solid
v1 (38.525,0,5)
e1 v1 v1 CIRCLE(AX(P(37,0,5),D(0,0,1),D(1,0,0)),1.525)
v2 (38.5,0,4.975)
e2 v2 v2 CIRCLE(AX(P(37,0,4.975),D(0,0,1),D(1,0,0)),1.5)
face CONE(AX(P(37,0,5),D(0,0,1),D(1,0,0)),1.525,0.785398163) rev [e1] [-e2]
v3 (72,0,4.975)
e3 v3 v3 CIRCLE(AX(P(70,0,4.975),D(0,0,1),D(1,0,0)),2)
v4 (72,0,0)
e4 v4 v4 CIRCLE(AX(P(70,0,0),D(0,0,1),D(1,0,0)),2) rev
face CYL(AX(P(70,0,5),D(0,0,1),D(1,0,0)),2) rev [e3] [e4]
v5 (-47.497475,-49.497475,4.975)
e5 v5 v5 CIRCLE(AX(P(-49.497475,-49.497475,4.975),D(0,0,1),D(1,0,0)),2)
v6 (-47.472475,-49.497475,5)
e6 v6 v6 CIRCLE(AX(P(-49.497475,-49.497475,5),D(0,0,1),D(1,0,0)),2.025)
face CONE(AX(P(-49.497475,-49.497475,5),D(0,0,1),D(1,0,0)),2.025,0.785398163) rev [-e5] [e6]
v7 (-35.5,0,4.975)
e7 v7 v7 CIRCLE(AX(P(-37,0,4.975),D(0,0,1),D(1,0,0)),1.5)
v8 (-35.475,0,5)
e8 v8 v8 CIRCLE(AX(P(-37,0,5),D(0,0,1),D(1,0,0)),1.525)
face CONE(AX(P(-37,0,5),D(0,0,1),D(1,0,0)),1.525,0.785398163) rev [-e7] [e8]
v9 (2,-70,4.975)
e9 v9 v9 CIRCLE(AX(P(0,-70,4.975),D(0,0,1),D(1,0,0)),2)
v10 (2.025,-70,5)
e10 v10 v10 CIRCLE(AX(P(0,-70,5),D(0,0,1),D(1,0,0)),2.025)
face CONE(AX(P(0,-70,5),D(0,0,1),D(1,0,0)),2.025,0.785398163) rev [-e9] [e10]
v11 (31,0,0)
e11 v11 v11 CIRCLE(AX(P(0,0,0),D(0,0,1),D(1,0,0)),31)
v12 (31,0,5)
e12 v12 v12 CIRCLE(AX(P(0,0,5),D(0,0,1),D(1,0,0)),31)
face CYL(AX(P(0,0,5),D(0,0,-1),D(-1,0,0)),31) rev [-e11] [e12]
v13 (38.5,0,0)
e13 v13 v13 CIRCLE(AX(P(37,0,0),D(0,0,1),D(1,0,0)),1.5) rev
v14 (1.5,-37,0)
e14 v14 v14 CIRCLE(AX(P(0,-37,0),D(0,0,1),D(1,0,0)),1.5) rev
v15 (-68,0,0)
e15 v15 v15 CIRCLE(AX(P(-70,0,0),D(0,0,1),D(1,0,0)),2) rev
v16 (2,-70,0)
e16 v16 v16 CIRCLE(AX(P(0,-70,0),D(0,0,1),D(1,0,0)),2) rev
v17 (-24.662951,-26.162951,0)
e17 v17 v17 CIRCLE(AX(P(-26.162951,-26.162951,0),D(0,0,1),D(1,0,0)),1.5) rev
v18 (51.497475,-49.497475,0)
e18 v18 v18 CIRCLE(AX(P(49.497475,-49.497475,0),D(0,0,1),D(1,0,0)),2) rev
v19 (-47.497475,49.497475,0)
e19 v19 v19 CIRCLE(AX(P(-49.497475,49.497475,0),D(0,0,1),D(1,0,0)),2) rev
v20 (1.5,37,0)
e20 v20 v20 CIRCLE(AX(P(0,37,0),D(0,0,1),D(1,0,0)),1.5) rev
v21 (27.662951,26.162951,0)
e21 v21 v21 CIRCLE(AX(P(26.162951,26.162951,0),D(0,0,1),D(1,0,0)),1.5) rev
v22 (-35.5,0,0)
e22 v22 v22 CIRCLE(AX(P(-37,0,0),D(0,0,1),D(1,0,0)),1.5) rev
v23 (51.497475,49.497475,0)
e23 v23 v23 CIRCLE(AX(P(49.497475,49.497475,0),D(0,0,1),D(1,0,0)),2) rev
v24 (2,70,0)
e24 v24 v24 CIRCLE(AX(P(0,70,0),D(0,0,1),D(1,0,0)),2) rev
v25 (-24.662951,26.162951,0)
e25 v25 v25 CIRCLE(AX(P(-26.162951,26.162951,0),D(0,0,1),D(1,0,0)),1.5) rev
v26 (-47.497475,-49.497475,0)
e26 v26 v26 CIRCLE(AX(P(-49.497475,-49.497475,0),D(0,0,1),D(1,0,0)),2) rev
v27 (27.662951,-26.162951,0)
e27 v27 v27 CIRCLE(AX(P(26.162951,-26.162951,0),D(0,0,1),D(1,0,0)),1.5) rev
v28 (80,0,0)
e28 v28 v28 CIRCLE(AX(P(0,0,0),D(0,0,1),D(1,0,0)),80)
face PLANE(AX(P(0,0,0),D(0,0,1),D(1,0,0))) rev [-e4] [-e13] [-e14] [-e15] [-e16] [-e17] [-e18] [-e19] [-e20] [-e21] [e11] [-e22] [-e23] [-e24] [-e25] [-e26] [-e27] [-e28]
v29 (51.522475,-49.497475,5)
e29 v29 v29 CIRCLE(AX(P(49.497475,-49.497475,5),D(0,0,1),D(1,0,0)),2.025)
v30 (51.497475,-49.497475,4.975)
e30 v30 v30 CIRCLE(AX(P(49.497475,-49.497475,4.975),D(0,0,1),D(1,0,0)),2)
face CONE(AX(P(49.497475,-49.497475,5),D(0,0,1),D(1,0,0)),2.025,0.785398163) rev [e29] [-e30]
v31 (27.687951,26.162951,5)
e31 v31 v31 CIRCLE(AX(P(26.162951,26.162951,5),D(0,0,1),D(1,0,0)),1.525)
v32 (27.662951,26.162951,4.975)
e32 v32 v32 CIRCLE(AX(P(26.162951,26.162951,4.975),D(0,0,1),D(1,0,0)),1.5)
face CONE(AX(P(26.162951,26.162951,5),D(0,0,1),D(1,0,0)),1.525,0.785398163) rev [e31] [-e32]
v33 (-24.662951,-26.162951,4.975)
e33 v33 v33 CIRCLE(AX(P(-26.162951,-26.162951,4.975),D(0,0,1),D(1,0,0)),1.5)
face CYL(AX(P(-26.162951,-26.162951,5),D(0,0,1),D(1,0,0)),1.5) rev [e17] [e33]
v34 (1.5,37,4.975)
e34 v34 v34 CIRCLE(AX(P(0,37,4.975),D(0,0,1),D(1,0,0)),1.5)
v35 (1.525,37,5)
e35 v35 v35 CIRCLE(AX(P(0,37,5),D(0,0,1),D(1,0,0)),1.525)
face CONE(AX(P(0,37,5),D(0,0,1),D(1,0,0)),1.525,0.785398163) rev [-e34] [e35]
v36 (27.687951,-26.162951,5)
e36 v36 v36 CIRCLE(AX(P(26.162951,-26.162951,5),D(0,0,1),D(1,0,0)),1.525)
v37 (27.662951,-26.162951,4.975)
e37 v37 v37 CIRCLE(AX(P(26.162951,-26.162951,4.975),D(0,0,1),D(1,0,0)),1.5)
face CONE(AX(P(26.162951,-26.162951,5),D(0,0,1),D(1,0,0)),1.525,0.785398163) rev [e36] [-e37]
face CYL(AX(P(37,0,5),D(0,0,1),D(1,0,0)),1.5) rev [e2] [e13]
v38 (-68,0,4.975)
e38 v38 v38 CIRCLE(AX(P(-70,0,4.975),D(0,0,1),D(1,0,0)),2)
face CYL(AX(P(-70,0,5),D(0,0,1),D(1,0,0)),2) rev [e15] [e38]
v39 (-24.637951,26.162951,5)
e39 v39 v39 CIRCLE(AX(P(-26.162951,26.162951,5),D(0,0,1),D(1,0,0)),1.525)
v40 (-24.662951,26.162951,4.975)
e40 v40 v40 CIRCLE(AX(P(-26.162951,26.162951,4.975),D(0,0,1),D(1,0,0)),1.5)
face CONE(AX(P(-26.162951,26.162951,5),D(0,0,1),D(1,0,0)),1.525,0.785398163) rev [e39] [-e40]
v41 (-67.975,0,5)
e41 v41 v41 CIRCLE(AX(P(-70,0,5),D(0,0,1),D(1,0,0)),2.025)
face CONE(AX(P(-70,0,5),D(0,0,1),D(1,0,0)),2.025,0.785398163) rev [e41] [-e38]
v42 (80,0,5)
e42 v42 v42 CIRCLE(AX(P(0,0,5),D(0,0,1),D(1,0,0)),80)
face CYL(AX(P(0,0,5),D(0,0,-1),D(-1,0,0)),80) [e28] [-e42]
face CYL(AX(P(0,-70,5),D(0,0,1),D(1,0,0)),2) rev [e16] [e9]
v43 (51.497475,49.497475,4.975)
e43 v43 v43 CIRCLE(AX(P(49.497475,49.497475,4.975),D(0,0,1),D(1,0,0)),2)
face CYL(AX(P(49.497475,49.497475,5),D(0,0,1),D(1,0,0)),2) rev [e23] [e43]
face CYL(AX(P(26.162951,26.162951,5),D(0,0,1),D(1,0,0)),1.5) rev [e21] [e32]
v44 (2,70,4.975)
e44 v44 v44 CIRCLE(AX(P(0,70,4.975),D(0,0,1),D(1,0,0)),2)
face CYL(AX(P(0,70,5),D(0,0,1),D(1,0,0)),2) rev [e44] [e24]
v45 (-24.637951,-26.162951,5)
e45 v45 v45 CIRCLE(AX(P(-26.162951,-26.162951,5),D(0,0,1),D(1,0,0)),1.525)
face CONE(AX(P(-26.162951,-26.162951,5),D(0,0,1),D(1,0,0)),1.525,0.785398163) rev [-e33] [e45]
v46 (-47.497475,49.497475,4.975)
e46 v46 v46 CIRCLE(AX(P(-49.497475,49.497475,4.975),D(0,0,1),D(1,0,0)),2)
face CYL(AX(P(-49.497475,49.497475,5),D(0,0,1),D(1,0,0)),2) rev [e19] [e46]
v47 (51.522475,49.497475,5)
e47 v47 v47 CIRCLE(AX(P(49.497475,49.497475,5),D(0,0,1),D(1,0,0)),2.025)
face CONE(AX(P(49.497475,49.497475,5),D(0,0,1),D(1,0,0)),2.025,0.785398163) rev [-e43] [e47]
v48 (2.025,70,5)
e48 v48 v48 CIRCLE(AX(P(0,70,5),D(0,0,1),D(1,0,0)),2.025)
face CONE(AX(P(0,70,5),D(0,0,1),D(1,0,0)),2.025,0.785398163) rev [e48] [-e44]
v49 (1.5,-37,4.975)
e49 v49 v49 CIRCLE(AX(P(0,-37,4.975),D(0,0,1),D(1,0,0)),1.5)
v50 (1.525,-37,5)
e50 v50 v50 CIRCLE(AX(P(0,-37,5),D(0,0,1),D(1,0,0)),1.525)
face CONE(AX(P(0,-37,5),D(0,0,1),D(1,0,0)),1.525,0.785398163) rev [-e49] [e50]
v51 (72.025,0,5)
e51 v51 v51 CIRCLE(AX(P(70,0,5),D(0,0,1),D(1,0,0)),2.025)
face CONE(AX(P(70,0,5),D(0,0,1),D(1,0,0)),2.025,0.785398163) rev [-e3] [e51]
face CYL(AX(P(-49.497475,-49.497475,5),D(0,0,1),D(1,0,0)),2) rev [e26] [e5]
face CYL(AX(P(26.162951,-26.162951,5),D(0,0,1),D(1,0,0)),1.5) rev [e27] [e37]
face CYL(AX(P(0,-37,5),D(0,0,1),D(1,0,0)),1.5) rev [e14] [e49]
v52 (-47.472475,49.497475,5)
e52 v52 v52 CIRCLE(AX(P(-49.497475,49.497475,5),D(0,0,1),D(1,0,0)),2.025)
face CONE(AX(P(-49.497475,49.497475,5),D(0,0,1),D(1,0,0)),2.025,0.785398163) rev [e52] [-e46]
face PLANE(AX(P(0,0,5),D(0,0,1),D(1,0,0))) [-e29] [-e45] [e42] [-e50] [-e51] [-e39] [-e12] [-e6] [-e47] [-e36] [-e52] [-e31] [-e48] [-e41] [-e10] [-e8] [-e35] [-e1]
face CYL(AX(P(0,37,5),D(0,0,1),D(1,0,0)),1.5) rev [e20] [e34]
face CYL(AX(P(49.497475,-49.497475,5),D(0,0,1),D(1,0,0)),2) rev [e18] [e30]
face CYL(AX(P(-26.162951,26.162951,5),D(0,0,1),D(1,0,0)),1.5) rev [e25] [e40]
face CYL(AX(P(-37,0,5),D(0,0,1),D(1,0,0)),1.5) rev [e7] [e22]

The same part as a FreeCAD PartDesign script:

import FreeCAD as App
import Part
import Sketcher
Q = App.Units.Quantity

doc = App.newDocument("Part")
params = doc.addObject("Spreadsheet::Sheet", "Params")
for row, (alias, value) in enumerate([
    ("sketch1_diameter", "160 mm"),
    ("sketch1_diameter2", "62 mm"),
    ("pad1_length", "5 mm"),
    ("sketch2_diameter", "4 mm"),
    ("hole_diameter", "4 mm"),
    ("hole_csink_diameter", "4.05 mm"),
    ("sketch3_diameter", "3 mm"),
    ("hole2_diameter", "3 mm"),
    ("hole2_csink_diameter", "3.05 mm"),
], start=1):
    params.set(f"A{row}", alias)
    params.set(f"B{row}", "=" + value)
    params.setAlias(f"B{row}", alias)

body = doc.addObject("PartDesign::Body", "Body")

sketch1 = body.newObject("Sketcher::SketchObject", "Sketch")
sketch1.AttachmentSupport = (doc.getObject("XY_Plane"), [""])
sketch1.MapMode = "FlatFace"
sketch1.addGeometry([
    Part.Circle(App.Vector(0, 0, 0), App.Vector(0, 0, 1), 80),
    Part.Circle(App.Vector(0, 0, 0), App.Vector(0, 0, 1), 31),
], False)
sketch1.addConstraint([
    Sketcher.Constraint("Coincident", 0, 3, -1, 1),
    Sketcher.Constraint("Coincident", 1, 3, -1, 1),
    Sketcher.Constraint("Diameter", 0, Q("160 mm")),
    Sketcher.Constraint("Diameter", 1, Q("62 mm")),
])
sketch1.setExpression("Constraints[2]", "Params.sketch1_diameter")
sketch1.setExpression("Constraints[3]", "Params.sketch1_diameter2")
pad1 = body.newObject("PartDesign::Pad", "Pad")
pad1.Profile = sketch1
pad1.setExpression("Length", "Params.pad1_length")

sketch2 = body.newObject("Sketcher::SketchObject", "Sketch001")
sketch2.AttachmentSupport = (doc.getObject("XY_Plane"), [""])
sketch2.MapMode = "FlatFace"
sketch2.AttachmentOffset = App.Placement(App.Vector(0, 0, 5), App.Rotation())
sketch2.addGeometry([
    Part.Circle(App.Vector(0, 70, 0), App.Vector(0, 0, 1), 2),
    Part.Circle(App.Vector(-49.5, 49.5, 0), App.Vector(0, 0, 1), 2),
    Part.Circle(App.Vector(-70, 0, 0), App.Vector(0, 0, 1), 2),
    Part.Circle(App.Vector(-49.5, -49.5, 0), App.Vector(0, 0, 1), 2),
    Part.Circle(App.Vector(0, -70, 0), App.Vector(0, 0, 1), 2),
    Part.Circle(App.Vector(49.5, -49.5, 0), App.Vector(0, 0, 1), 2),
    Part.Circle(App.Vector(70, 0, 0), App.Vector(0, 0, 1), 2),
    Part.Circle(App.Vector(49.5, 49.5, 0), App.Vector(0, 0, 1), 2),
], False)
sketch2.addConstraint([
    Sketcher.Constraint("Equal", 0, 1),
    Sketcher.Constraint("Equal", 1, 2),
    Sketcher.Constraint("Equal", 2, 3),
    Sketcher.Constraint("Equal", 3, 4),
    Sketcher.Constraint("Equal", 4, 5),
    Sketcher.Constraint("Equal", 5, 6),
    Sketcher.Constraint("Equal", 6, 7),
    Sketcher.Constraint("Symmetric", 0, 3, 4, 3, -1, 1),
    Sketcher.Constraint("Symmetric", 1, 3, 5, 3, -1, 1),
    Sketcher.Constraint("Symmetric", 2, 3, 6, 3, -1, 1),
    Sketcher.Constraint("Symmetric", 3, 3, 7, 3, -1, 1),
    Sketcher.Constraint("Symmetric", 3, 3, 5, 3, -2),
    Sketcher.Constraint("PointOnObject", 0, 3, -2),
    Sketcher.Constraint("PointOnObject", 2, 3, -1),
    Sketcher.Constraint("Diameter", 0, Q("4 mm")),
    Sketcher.Constraint("DistanceY", -1, 1, 0, 3, Q("70 mm")),
    Sketcher.Constraint("DistanceX", 2, 3, -1, 1, Q("70 mm")),
    Sketcher.Constraint("DistanceY", 3, 3, 1, 3, Q("98.994949 mm")),
    Sketcher.Constraint("DistanceX", 3, 3, 5, 3, Q("98.994949 mm")),
])
sketch2.setExpression("Constraints[14]", "Params.sketch2_diameter")
doc.recompute()
hole = body.newObject("PartDesign::Hole", "Hole")
hole.Profile = sketch2
hole.ThreadType = "None"
hole.setExpression("Diameter", "Params.hole_diameter")
hole.DepthType = "ThroughAll"
hole.HoleCutType = "Countersink"
hole.setExpression("HoleCutDiameter", "Params.hole_csink_diameter")
hole.HoleCutCountersinkAngle = 90

sketch3 = body.newObject("Sketcher::SketchObject", "Sketch002")
sketch3.AttachmentSupport = (doc.getObject("XY_Plane"), [""])
sketch3.MapMode = "FlatFace"
sketch3.AttachmentOffset = App.Placement(App.Vector(0, 0, 5), App.Rotation())
sketch3.addGeometry([
    Part.Circle(App.Vector(0, 37, 0), App.Vector(0, 0, 1), 1.5),
    Part.Circle(App.Vector(-26.2, 26.2, 0), App.Vector(0, 0, 1), 1.5),
    Part.Circle(App.Vector(-37, 0, 0), App.Vector(0, 0, 1), 1.5),
    Part.Circle(App.Vector(-26.2, -26.2, 0), App.Vector(0, 0, 1), 1.5),
    Part.Circle(App.Vector(0, -37, 0), App.Vector(0, 0, 1), 1.5),
    Part.Circle(App.Vector(26.2, -26.2, 0), App.Vector(0, 0, 1), 1.5),
    Part.Circle(App.Vector(37, 0, 0), App.Vector(0, 0, 1), 1.5),
    Part.Circle(App.Vector(26.2, 26.2, 0), App.Vector(0, 0, 1), 1.5),
], False)
sketch3.addConstraint([
    Sketcher.Constraint("Equal", 0, 1),
    Sketcher.Constraint("Equal", 1, 2),
    Sketcher.Constraint("Equal", 2, 3),
    Sketcher.Constraint("Equal", 3, 4),
    Sketcher.Constraint("Equal", 4, 5),
    Sketcher.Constraint("Equal", 5, 6),
    Sketcher.Constraint("Equal", 6, 7),
    Sketcher.Constraint("Symmetric", 0, 3, 4, 3, -1, 1),
    Sketcher.Constraint("Symmetric", 1, 3, 5, 3, -1, 1),
    Sketcher.Constraint("Symmetric", 2, 3, 6, 3, -1, 1),
    Sketcher.Constraint("Symmetric", 3, 3, 7, 3, -1, 1),
    Sketcher.Constraint("Symmetric", 3, 3, 5, 3, -2),
    Sketcher.Constraint("PointOnObject", 0, 3, -2),
    Sketcher.Constraint("PointOnObject", 2, 3, -1),
    Sketcher.Constraint("Diameter", 0, Q("3 mm")),
    Sketcher.Constraint("DistanceY", -1, 1, 0, 3, Q("37 mm")),
    Sketcher.Constraint("DistanceX", 2, 3, -1, 1, Q("37 mm")),
    Sketcher.Constraint("DistanceY", 3, 3, 1, 3, Q("52.325902 mm")),
    Sketcher.Constraint("DistanceX", 3, 3, 5, 3, Q("52.325902 mm")),
])
sketch3.setExpression("Constraints[14]", "Params.sketch3_diameter")
doc.recompute()
hole2 = body.newObject("PartDesign::Hole", "Hole001")
hole2.Profile = sketch3
hole2.ThreadType = "None"
hole2.setExpression("Diameter", "Params.hole2_diameter")
hole2.DepthType = "ThroughAll"
hole2.HoleCutType = "Countersink"
hole2.setExpression("HoleCutDiameter", "Params.hole2_csink_diameter")
hole2.HoleCutCountersinkAngle = 90

doc.recompute()
